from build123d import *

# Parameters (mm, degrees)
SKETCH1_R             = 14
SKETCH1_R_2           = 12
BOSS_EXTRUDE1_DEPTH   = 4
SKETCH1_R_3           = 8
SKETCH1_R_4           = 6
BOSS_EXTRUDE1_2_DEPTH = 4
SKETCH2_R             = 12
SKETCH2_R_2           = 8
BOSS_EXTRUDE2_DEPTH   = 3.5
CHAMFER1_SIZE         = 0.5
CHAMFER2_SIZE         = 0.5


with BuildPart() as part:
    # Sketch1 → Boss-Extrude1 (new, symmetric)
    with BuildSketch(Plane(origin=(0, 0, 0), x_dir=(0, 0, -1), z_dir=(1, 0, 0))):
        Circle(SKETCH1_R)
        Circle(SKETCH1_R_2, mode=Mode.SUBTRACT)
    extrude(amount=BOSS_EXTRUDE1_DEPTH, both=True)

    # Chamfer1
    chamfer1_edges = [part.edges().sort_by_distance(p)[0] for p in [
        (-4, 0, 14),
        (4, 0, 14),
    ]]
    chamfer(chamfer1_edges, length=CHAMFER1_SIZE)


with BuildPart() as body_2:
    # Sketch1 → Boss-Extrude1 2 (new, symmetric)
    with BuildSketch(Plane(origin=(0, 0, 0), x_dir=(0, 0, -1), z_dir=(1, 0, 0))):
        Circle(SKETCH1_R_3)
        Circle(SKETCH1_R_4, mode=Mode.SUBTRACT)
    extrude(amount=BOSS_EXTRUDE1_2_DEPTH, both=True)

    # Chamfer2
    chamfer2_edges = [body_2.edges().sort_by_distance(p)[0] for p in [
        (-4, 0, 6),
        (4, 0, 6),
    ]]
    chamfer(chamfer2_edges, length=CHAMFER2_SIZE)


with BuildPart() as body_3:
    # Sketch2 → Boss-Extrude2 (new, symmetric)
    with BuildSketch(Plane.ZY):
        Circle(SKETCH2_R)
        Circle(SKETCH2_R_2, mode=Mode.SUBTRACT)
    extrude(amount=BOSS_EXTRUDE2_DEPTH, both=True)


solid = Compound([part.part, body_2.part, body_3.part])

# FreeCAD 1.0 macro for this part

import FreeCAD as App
import Part
import Sketcher

V = App.Vector


def edges_at(feature, points):
    """Names of the edges that pass closest to the given points."""
    edges = feature.Shape.Edges
    near = lambda p: min(range(len(edges)), key=lambda i: edges[i].distToShape(Part.Vertex(*p))[0])
    return sorted({f"Edge{near(p) + 1}" for p in points})

doc = App.newDocument("Part")
body = doc.addObject("PartDesign::Body", "Body")

# Sketch on YZ plane
sketch1 = body.newObject("Sketcher::SketchObject", "Sketch")
sketch1.AttachmentSupport = (doc.getObject("YZ_Plane"), [""])
sketch1.MapMode = "FlatFace"
sketch1.addGeometry([
    Part.Circle(V(0, 0, 0), V(0, 0, 1), 14),
    Part.Circle(V(0, 0, 0), V(0, 0, 1), 12),
], False)
sketch1.addConstraint([
    Sketcher.Constraint("Coincident", 0, 3, -1, 1),
    Sketcher.Constraint("Coincident", 1, 3, -1, 1),
    Sketcher.Constraint("Diameter", 0, 28.0),
    Sketcher.Constraint("Diameter", 1, 24.0),
])
pad1 = body.newObject("PartDesign::Pad", "Pad")
pad1.Profile = sketch1
pad1.Length = 8
pad1.Midplane = True
doc.recompute()

chamfer = body.newObject("PartDesign::Chamfer", "Chamfer")
chamfer.Base = (pad1, edges_at(pad1, [(-4, 0, 14), (4, 0, 14)]))
chamfer.Size = 0.5
body2 = doc.addObject("PartDesign::Body", "Body001")

# Sketch on YZ plane
sketch2 = body2.newObject("Sketcher::SketchObject", "Sketch001")
sketch2.AttachmentSupport = (doc.getObject("YZ_Plane001"), [""])
sketch2.MapMode = "FlatFace"
sketch2.addGeometry([
    Part.Circle(V(0, 0, 0), V(0, 0, 1), 8),
    Part.Circle(V(0, 0, 0), V(0, 0, 1), 6),
], False)
sketch2.addConstraint([
    Sketcher.Constraint("Coincident", 0, 3, -1, 1),
    Sketcher.Constraint("Coincident", 1, 3, -1, 1),
    Sketcher.Constraint("Diameter", 0, 16.0),
    Sketcher.Constraint("Diameter", 1, 12.0),
])
pad2 = body2.newObject("PartDesign::Pad", "Pad001")
pad2.Profile = sketch2
pad2.Length = 8
pad2.Midplane = True
doc.recompute()

chamfer2 = body2.newObject("PartDesign::Chamfer", "Chamfer001")
chamfer2.Base = (pad2, edges_at(pad2, [(-4, 0, 6), (4, 0, 6)]))
chamfer2.Size = 0.5
body3 = doc.addObject("PartDesign::Body", "Body002")

# Sketch on YZ plane
sketch3 = body3.newObject("Sketcher::SketchObject", "Sketch002")
sketch3.AttachmentSupport = (doc.getObject("YZ_Plane002"), [""])
sketch3.MapMode = "FlatFace"
sketch3.addGeometry([
    Part.Circle(V(0, 0, 0), V(0, 0, 1), 12),
    Part.Circle(V(0, 0, 0), V(0, 0, 1), 8),
], False)
sketch3.addConstraint([
    Sketcher.Constraint("Coincident", 0, 3, -1, 1),
    Sketcher.Constraint("Coincident", 1, 3, -1, 1),
    Sketcher.Constraint("Diameter", 0, 24.0),
    Sketcher.Constraint("Diameter", 1, 16.0),
])
pad3 = body3.newObject("PartDesign::Pad", "Pad002")
pad3.Profile = sketch3
pad3.Length = 7
pad3.Midplane = True

doc.recompute()
